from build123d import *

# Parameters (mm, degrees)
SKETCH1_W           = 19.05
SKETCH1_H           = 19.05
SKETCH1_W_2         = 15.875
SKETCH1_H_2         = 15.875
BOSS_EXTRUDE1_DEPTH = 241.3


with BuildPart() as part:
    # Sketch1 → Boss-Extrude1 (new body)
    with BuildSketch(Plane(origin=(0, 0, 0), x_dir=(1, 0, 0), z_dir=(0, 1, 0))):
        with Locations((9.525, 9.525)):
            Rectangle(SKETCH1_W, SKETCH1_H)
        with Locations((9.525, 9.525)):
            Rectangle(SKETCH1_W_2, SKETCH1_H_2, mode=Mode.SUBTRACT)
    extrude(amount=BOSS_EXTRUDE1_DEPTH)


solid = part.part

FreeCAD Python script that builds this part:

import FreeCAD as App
import Part
import Sketcher

V = App.Vector
Q = App.Units.Quantity


def add_polygon(sketch, points):
    """Adds a closed chain of lines whose ends are joined by coincident constraints."""
    first, n = sketch.GeometryCount, len(points)
    for a, b in zip(points, points[1:] + points[:1]):
        sketch.addGeometry(Part.LineSegment(App.Vector(*a, 0), App.Vector(*b, 0)), False)
    for i in range(n):
        sketch.addConstraint(Sketcher.Constraint("Coincident", first + i, 2, first + (i + 1) % n, 1))

doc = App.newDocument("Part")
body = doc.addObject("PartDesign::Body", "Body")

sketch1 = body.newObject("Sketcher::SketchObject", "Sketch")
sketch1.AttachmentSupport = (doc.getObject("XZ_Plane"), [""])
sketch1.MapMode = "FlatFace"
add_polygon(sketch1, [(0, -19.05), (0, 0), (19.05, 0), (19.05, -19.05)])
add_polygon(sketch1, [(17.4625, -1.5875), (1.5875, -1.5875), (1.5875, -17.4625), (17.4625, -17.4625)])
sketch1.addConstraint([
    Sketcher.Constraint("Vertical", 0),
    Sketcher.Constraint("Horizontal", 1),
    Sketcher.Constraint("Vertical", 2),
    Sketcher.Constraint("Horizontal", 3),
    Sketcher.Constraint("Horizontal", 4),
    Sketcher.Constraint("Vertical", 5),
    Sketcher.Constraint("Horizontal", 6),
    Sketcher.Constraint("Vertical", 7),
    Sketcher.Constraint("Coincident", 0, 2, -1, 1),
    Sketcher.Constraint("Equal", 3, 0),
    Sketcher.Constraint("Equal", 6, 5),
    Sketcher.Constraint("DistanceX", 1, 1, 1, 2, Q("0.75 in")),
    Sketcher.Constraint("DistanceX", 4, 2, 4, 1, Q("0.625 in")),
    Sketcher.Constraint("DistanceX", -1, 1, 4, 2, Q("0.0625 in")),
    Sketcher.Constraint("DistanceY", 4, 2, -1, 1, Q("0.0625 in")),
])
pad1 = body.newObject("PartDesign::Pad", "Pad")
pad1.Profile = sketch1
pad1.Length = Q("9.5 in")
pad1.Reversed = True

doc.recompute()
